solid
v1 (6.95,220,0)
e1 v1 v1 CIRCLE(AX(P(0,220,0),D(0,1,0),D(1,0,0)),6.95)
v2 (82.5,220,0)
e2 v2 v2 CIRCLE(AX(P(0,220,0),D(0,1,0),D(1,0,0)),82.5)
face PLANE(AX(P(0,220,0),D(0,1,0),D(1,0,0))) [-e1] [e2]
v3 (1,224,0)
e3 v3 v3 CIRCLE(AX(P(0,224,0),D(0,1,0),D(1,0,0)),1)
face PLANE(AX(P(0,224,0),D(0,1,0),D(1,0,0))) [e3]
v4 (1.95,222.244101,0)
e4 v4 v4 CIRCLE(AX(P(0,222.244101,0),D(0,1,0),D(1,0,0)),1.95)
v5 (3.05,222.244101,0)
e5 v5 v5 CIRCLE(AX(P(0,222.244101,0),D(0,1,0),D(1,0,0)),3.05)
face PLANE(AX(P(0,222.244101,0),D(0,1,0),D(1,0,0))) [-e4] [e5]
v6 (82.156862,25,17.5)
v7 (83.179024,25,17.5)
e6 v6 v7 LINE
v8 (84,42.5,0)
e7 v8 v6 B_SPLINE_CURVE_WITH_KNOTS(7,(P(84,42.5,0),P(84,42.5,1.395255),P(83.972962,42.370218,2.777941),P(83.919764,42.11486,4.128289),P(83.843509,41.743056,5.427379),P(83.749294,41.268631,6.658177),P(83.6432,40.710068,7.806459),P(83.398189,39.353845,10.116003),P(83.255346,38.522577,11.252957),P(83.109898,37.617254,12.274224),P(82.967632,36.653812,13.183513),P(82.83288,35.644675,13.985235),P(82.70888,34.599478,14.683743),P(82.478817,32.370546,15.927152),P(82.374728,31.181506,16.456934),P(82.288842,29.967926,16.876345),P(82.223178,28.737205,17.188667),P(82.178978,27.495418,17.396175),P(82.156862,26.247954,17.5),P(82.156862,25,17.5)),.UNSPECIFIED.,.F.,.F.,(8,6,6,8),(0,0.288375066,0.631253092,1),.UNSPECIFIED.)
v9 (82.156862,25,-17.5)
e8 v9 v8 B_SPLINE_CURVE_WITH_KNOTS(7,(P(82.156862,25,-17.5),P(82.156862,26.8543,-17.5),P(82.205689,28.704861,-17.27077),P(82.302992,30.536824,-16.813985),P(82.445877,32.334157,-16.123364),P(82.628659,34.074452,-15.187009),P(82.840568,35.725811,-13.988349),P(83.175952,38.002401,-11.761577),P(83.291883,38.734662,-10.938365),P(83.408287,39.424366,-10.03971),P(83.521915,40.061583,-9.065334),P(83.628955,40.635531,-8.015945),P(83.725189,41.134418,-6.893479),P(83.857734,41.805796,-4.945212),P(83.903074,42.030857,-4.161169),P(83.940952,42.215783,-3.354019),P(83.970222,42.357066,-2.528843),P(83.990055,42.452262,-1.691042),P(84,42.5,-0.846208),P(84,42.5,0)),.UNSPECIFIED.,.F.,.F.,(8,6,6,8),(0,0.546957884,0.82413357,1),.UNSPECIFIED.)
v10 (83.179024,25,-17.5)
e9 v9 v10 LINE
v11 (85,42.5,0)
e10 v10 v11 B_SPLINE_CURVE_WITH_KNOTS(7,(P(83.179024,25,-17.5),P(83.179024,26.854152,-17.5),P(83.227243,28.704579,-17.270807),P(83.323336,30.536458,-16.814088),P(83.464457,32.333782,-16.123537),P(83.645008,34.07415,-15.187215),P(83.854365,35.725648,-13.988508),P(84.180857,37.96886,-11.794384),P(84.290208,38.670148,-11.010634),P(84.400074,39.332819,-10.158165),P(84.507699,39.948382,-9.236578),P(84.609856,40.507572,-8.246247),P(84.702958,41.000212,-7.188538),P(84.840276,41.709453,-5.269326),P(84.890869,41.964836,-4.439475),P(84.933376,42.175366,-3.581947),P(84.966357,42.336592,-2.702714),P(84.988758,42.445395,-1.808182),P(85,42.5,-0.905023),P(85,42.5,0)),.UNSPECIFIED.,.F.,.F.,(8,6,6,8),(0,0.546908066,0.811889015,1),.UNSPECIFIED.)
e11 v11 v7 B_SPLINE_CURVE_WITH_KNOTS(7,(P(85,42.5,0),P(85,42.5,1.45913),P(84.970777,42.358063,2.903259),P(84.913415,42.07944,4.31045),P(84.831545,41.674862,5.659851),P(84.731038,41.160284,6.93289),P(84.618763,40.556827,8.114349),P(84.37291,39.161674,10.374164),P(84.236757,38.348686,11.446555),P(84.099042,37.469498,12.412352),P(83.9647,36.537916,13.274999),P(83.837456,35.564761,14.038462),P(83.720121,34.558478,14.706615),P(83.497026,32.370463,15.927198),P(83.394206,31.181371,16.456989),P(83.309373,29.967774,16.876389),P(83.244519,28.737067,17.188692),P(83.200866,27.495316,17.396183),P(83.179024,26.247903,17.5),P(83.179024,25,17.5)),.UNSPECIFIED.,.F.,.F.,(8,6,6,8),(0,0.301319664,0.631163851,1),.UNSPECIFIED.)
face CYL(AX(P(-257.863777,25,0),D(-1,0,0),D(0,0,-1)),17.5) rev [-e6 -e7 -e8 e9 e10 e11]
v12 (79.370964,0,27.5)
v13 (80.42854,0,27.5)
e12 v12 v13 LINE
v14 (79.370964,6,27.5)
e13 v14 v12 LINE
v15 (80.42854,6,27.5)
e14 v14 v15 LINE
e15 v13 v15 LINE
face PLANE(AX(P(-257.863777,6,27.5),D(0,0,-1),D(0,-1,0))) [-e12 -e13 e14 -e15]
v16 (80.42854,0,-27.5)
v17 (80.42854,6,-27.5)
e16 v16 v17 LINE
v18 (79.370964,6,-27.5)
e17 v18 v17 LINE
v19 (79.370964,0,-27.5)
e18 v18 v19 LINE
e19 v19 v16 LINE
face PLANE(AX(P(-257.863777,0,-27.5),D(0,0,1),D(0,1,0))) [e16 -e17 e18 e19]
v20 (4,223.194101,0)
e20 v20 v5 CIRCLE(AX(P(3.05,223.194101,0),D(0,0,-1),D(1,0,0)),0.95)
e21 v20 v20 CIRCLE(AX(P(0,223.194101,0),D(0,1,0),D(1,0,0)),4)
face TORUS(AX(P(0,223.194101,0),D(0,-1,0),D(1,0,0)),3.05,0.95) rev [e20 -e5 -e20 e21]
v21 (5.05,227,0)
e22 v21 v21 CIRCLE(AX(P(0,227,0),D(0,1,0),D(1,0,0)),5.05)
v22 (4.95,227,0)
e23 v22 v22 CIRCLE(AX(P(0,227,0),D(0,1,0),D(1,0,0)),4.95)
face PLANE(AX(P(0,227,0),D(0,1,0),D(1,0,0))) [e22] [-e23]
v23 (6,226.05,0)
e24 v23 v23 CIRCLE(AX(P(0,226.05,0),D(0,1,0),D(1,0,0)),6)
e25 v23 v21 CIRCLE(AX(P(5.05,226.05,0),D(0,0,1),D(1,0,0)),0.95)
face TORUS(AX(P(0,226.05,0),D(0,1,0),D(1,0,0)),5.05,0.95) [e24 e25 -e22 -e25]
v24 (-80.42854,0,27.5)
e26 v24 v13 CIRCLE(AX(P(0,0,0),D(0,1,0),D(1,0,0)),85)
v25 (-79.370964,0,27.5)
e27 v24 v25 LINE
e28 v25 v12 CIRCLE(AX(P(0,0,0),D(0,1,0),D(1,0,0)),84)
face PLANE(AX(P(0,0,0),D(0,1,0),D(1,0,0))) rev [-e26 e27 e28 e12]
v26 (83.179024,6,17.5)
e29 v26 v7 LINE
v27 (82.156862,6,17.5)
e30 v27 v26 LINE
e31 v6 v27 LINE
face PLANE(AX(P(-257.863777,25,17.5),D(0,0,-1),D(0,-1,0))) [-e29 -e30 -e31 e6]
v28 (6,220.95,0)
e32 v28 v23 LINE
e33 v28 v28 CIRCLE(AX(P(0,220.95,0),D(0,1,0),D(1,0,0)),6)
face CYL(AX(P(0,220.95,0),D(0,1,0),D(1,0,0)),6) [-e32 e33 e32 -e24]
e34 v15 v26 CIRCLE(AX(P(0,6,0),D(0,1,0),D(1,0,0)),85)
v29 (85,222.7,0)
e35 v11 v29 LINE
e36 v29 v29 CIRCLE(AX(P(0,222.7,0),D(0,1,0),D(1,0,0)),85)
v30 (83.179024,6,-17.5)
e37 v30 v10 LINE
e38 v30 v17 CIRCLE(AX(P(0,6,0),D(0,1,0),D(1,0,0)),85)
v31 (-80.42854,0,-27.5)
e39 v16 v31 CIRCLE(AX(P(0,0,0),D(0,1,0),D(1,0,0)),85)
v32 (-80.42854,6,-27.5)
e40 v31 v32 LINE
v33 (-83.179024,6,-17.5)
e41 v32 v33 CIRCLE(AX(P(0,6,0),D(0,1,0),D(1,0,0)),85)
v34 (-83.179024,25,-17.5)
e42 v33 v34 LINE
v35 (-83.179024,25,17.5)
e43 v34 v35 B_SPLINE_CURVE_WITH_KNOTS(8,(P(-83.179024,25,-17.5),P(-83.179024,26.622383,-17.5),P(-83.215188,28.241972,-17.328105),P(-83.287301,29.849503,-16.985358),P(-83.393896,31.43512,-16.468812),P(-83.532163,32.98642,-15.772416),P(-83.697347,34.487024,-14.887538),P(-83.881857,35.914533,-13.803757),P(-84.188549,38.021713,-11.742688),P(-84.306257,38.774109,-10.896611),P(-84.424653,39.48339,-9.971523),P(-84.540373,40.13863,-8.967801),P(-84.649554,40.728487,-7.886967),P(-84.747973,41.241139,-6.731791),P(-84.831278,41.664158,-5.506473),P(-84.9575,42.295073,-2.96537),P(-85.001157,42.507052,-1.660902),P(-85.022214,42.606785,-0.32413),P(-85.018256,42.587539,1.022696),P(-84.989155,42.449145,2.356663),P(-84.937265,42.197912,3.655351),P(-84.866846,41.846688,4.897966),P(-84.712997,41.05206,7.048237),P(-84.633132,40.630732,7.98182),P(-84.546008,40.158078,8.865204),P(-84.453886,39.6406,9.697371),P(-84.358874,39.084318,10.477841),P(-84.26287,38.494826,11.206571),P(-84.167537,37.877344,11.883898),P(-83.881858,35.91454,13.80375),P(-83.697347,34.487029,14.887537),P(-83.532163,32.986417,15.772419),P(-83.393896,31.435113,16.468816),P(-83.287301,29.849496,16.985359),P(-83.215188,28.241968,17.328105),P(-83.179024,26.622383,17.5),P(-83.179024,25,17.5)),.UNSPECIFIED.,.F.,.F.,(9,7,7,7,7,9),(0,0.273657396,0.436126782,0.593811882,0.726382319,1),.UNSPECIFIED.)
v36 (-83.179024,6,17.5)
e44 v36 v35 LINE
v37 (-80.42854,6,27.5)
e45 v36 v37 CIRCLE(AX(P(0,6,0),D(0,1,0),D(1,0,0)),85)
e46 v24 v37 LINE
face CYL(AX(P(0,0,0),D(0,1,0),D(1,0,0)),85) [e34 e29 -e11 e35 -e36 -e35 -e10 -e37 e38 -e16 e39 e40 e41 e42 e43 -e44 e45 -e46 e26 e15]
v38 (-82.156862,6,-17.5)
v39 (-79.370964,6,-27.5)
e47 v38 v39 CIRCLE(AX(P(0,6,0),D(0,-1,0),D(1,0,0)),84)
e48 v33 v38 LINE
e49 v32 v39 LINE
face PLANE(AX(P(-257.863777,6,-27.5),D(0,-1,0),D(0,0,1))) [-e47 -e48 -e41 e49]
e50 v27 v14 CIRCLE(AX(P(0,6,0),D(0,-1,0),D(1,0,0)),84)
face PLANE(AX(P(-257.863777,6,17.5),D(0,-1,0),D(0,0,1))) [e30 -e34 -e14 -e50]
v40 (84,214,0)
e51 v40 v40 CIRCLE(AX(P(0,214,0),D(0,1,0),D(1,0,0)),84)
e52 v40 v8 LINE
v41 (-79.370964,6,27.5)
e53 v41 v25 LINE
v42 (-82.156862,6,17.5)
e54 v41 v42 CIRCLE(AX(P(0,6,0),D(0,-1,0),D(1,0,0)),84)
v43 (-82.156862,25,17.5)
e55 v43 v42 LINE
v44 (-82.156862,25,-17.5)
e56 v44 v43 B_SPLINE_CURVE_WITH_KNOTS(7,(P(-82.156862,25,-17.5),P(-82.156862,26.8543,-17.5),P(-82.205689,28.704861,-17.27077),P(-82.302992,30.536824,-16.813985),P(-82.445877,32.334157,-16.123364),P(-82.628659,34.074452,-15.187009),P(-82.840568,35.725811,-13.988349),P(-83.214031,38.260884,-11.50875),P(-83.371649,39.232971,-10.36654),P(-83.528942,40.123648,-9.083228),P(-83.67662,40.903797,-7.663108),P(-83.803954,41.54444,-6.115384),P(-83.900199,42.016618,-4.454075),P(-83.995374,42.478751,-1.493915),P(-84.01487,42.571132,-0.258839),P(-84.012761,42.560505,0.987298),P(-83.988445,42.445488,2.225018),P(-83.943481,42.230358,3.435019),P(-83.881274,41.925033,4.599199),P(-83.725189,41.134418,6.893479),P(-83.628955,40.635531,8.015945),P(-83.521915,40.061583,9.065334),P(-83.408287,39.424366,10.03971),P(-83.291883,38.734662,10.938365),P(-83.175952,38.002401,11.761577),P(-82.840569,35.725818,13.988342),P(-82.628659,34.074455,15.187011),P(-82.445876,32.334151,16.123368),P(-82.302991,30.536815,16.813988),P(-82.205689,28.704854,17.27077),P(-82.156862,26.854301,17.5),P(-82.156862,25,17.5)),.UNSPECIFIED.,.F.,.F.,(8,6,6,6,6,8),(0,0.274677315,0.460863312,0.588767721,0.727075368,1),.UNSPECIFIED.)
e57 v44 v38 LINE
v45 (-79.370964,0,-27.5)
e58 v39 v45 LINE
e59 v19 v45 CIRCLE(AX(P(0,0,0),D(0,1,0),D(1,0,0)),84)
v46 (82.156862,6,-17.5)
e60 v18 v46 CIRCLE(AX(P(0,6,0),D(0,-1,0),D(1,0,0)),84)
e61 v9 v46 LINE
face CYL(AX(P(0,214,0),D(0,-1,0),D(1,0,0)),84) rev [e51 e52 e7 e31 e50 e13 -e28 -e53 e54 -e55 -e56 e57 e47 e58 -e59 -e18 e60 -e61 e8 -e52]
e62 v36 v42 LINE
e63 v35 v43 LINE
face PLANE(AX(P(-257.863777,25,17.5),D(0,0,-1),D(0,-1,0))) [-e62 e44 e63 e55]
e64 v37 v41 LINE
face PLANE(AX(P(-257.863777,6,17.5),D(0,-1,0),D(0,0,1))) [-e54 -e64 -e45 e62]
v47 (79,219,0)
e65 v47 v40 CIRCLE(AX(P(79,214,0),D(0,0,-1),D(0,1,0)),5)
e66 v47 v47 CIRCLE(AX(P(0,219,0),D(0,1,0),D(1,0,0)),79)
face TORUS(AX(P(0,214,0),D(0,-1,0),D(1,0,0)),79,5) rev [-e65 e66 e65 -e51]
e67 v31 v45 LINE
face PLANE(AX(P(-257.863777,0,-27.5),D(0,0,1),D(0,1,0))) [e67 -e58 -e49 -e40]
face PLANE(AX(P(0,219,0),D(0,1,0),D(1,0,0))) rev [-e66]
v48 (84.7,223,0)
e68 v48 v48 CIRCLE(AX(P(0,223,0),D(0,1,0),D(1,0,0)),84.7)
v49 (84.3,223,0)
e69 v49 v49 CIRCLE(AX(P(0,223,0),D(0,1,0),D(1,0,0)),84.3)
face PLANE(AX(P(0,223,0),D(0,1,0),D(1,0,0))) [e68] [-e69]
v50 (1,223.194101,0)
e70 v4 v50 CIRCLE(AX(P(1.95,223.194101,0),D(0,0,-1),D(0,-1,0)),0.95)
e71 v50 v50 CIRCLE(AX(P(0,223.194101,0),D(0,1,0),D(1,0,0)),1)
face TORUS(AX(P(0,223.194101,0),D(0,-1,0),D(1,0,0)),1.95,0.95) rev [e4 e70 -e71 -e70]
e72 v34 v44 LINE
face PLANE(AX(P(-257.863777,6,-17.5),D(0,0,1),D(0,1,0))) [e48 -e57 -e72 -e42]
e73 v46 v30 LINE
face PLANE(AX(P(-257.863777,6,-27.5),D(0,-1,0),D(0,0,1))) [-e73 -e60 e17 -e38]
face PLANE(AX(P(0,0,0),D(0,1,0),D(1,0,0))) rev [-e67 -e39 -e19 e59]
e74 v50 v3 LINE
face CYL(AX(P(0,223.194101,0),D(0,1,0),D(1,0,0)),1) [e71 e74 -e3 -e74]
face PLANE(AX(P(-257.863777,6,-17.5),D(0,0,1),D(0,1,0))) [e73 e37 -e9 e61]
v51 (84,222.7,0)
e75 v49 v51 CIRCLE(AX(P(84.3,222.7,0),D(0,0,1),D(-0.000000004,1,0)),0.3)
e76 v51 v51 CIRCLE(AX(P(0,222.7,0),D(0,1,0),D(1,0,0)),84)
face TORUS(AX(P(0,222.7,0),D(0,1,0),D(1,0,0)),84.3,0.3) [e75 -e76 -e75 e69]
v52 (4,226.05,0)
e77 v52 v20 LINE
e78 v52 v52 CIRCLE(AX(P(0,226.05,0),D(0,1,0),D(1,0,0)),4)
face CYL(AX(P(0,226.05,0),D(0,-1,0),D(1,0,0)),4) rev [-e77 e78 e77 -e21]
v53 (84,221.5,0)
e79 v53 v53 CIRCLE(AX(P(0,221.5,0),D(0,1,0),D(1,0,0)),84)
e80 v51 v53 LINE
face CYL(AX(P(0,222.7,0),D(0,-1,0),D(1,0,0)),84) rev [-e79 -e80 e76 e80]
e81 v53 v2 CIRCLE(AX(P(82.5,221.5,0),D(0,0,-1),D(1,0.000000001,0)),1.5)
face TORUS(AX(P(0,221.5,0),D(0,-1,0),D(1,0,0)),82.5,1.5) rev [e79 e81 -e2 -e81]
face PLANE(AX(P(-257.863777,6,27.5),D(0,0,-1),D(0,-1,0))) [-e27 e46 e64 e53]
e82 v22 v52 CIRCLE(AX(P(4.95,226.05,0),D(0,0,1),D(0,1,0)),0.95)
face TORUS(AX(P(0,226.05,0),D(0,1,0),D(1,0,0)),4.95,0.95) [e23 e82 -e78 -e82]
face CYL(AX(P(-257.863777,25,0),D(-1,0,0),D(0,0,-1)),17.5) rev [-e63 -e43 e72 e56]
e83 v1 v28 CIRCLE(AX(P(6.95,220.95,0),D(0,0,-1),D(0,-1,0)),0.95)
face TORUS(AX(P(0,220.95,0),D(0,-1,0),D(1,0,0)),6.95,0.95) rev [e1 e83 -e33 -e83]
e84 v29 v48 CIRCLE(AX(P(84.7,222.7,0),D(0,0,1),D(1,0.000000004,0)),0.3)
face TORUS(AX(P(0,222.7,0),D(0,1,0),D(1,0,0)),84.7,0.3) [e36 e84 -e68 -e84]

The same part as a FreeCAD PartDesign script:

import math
import FreeCAD as App
import Part
import Sketcher

doc = App.newDocument("Part")
body = doc.addObject("PartDesign::Body", "Body")

# Sketch on XY plane
sketch1 = body.newObject("Sketcher::SketchObject", "Sketch")
sketch1.AttachmentSupport = (doc.getObject("XY_Plane"), [""])
sketch1.MapMode = "FlatFace"
sketch1.addGeometry([
    Part.LineSegment(App.Vector(0, 219, 0), App.Vector(79, 219, 0)),  # 0
    Part.ArcOfCircle(Part.Circle(App.Vector(79, 214, 0), App.Vector(0, 0, 1), 5), math.radians(0), math.radians(90)),  # 1
    Part.LineSegment(App.Vector(84, 214, 0), App.Vector(84, 0, 0)),  # 2
    Part.LineSegment(App.Vector(84, 0, 0), App.Vector(85, 0, 0)),  # 3
    Part.LineSegment(App.Vector(85, 0, 0), App.Vector(85, 222.7, 0)),  # 4
    Part.ArcOfCircle(Part.Circle(App.Vector(84.7, 222.7, 0), App.Vector(0, 0, 1), 0.3), math.radians(0), math.radians(90)),  # 5
    Part.LineSegment(App.Vector(84.7, 223, 0), App.Vector(84.3, 223, 0)),  # 6
    Part.ArcOfCircle(Part.Circle(App.Vector(84.3, 222.7, 0), App.Vector(0, 0, 1), 0.3), math.radians(90), math.radians(180)),  # 7
    Part.LineSegment(App.Vector(84, 222.7, 0), App.Vector(84, 221.5, 0)),  # 8
    Part.ArcOfCircle(Part.Circle(App.Vector(82.5, 221.5, 0), App.Vector(0, 0, 1), 1.5), math.radians(-90), math.radians(0)),  # 9
    Part.LineSegment(App.Vector(82.5, 220, 0), App.Vector(6.95, 220, 0)),  # 10
    Part.ArcOfCircle(Part.Circle(App.Vector(6.95, 220.95, 0), App.Vector(0, 0, 1), 0.95), math.radians(180), math.radians(270)),  # 11
    Part.LineSegment(App.Vector(6, 220.95, 0), App.Vector(6, 226.05, 0)),  # 12
    Part.ArcOfCircle(Part.Circle(App.Vector(5.05, 226.05, 0), App.Vector(0, 0, 1), 0.95), math.radians(0), math.radians(90)),  # 13
    Part.LineSegment(App.Vector(5.05, 227, 0), App.Vector(4.95, 227, 0)),  # 14
    Part.ArcOfCircle(Part.Circle(App.Vector(4.95, 226.05, 0), App.Vector(0, 0, 1), 0.95), math.radians(90), math.radians(180)),  # 15
    Part.LineSegment(App.Vector(4, 226.05, 0), App.Vector(4, 223.194101, 0)),  # 16
    Part.ArcOfCircle(Part.Circle(App.Vector(3.05, 223.194101, 0), App.Vector(0, 0, 1), 0.95), math.radians(-90), math.radians(0)),  # 17
    Part.LineSegment(App.Vector(3.05, 222.244101, 0), App.Vector(1.95, 222.244101, 0)),  # 18
    Part.ArcOfCircle(Part.Circle(App.Vector(1.95, 223.194101, 0), App.Vector(0, 0, 1), 0.95), math.radians(180), math.radians(270)),  # 19
    Part.LineSegment(App.Vector(1, 223.194101, 0), App.Vector(1, 224, 0)),  # 20
    Part.LineSegment(App.Vector(1, 224, 0), App.Vector(0, 224, 0)),  # 21
    Part.LineSegment(App.Vector(0, 224, 0), App.Vector(0, 219, 0)),  # 22
], False)
sketch1.addConstraint([
    Sketcher.Constraint("Tangent", 0, 2, 1, 2),
    Sketcher.Constraint("Tangent", 1, 1, 2, 1),
    Sketcher.Constraint("Coincident", 2, 2, 3, 1),
    Sketcher.Constraint("Coincident", 3, 2, 4, 1),
    Sketcher.Constraint("Tangent", 4, 2, 5, 1),
    Sketcher.Constraint("Tangent", 5, 2, 6, 1),
    Sketcher.Constraint("Tangent", 6, 2, 7, 1),
    Sketcher.Constraint("Tangent", 7, 2, 8, 1),
    Sketcher.Constraint("Tangent", 8, 2, 9, 2),
    Sketcher.Constraint("Tangent", 9, 1, 10, 1),
    Sketcher.Constraint("Tangent", 10, 2, 11, 2),
    Sketcher.Constraint("Tangent", 11, 1, 12, 1),
    Sketcher.Constraint("Tangent", 12, 2, 13, 1),
    Sketcher.Constraint("Tangent", 13, 2, 14, 1),
    Sketcher.Constraint("Tangent", 14, 2, 15, 1),
    Sketcher.Constraint("Tangent", 15, 2, 16, 1),
    Sketcher.Constraint("Tangent", 16, 2, 17, 2),
    Sketcher.Constraint("Tangent", 17, 1, 18, 1),
    Sketcher.Constraint("Tangent", 18, 2, 19, 2),
    Sketcher.Constraint("Tangent", 19, 1, 20, 1),
    Sketcher.Constraint("Coincident", 20, 2, 21, 1),
    Sketcher.Constraint("Coincident", 21, 2, 22, 1),
    Sketcher.Constraint("Coincident", 22, 2, 0, 1),
    Sketcher.Constraint("Horizontal", 0),
    Sketcher.Constraint("Vertical", 2),
    Sketcher.Constraint("Horizontal", 3),
    Sketcher.Constraint("Vertical", 4),
    Sketcher.Constraint("Horizontal", 6),
    Sketcher.Constraint("Vertical", 8),
    Sketcher.Constraint("Horizontal", 10),
    Sketcher.Constraint("Vertical", 12),
    Sketcher.Constraint("Horizontal", 14),
    Sketcher.Constraint("Vertical", 16),
    Sketcher.Constraint("Horizontal", 18),
    Sketcher.Constraint("Vertical", 20),
    Sketcher.Constraint("Horizontal", 21),
    Sketcher.Constraint("Vertical", 22),
    Sketcher.Constraint("Equal", 5, 7),
    Sketcher.Constraint("Equal", 11, 13),
    Sketcher.Constraint("Equal", 13, 15),
    Sketcher.Constraint("Equal", 15, 17),
    Sketcher.Constraint("Equal", 17, 19),
    Sketcher.Constraint("PointOnObject", 2, 2, -1),
    Sketcher.Constraint("PointOnObject", 21, 2, -2),
    Sketcher.Constraint("Vertical", 2, 2, 7, 2),
    Sketcher.Constraint("Equal", 3, 21),
    Sketcher.Constraint("Radius", 1, 5.0),
    Sketcher.Constraint("Radius", 5, 0.3),
    Sketcher.Constraint("Radius", 9, 1.5),
    Sketcher.Constraint("DistanceX", 0, 1, 0, 2, 79.0),
    Sketcher.Constraint("DistanceX", 3, 1, 3, 2, 1.0),
    Sketcher.Constraint("DistanceY", 2, 2, 2, 1, 214.0),
    Sketcher.Constraint("DistanceY", 22, 2, 22, 1, 5.0),
    Sketcher.Constraint("Radius", 11, 0.95),
    Sketcher.Constraint("DistanceX", 14, 2, 14, 1, 0.1),
    Sketcher.Constraint("DistanceX", 18, 2, 18, 1, 1.1),
    Sketcher.Constraint("DistanceY", 4, 1, 4, 2, 222.7),
    Sketcher.Constraint("DistanceY", 8, 2, 8, 1, 1.2),
    Sketcher.Constraint("DistanceY", 12, 1, 12, 2, 5.1),
    Sketcher.Constraint("DistanceY", 16, 2, 16, 1, 2.855899),
])
revolution = body.newObject("PartDesign::Revolution", "Revolution")
revolution.Profile = sketch1
revolution.ReferenceAxis = (sketch1, ["V_Axis"])
revolution.Angle = 360

# Sketch on YZ plane
sketch2 = body.newObject("Sketcher::SketchObject", "Sketch001")
sketch2.AttachmentSupport = (doc.getObject("YZ_Plane"), [""])
sketch2.MapMode = "FlatFace"
sketch2.addGeometry([
    Part.LineSegment(App.Vector(25, 17.5, 0), App.Vector(6, 17.5, 0)),  # 0
    Part.LineSegment(App.Vector(6, 17.5, 0), App.Vector(6, 27.5, 0)),  # 1
    Part.LineSegment(App.Vector(6, 27.5, 0), App.Vector(0, 27.5, 0)),  # 2
    Part.LineSegment(App.Vector(0, 27.5, 0), App.Vector(0, -27.5, 0)),  # 3
    Part.LineSegment(App.Vector(0, -27.5, 0), App.Vector(6, -27.5, 0)),  # 4
    Part.LineSegment(App.Vector(6, -27.5, 0), App.Vector(6, -17.5, 0)),  # 5
    Part.LineSegment(App.Vector(6, -17.5, 0), App.Vector(25, -17.5, 0)),  # 6
    Part.ArcOfCircle(Part.Circle(App.Vector(25, 0, 0), App.Vector(0, 0, 1), 17.5), math.radians(-90), math.radians(90)),  # 7
], False)
sketch2.addConstraint([
    Sketcher.Constraint("Coincident", 0, 2, 1, 1),
    Sketcher.Constraint("Coincident", 1, 2, 2, 1),
    Sketcher.Constraint("Coincident", 2, 2, 3, 1),
    Sketcher.Constraint("Coincident", 3, 2, 4, 1),
    Sketcher.Constraint("Coincident", 4, 2, 5, 1),
    Sketcher.Constraint("Coincident", 5, 2, 6, 1),
    Sketcher.Constraint("Tangent", 6, 2, 7, 1),
    Sketcher.Constraint("Tangent", 7, 2, 0, 1),
    Sketcher.Constraint("Horizontal", 0),
    Sketcher.Constraint("Vertical", 1),
    Sketcher.Constraint("Horizontal", 2),
    Sketcher.Constraint("Vertical", 3),
    Sketcher.Constraint("Horizontal", 4),
    Sketcher.Constraint("Vertical", 5),
    Sketcher.Constraint("Horizontal", 6),
    Sketcher.Constraint("Symmetric", 2, 2, 3, 2, -1, 1),
    Sketcher.Constraint("Symmetric", 0, 2, 5, 2, -1),
    Sketcher.Constraint("Radius", 7, 17.5),
    Sketcher.Constraint("DistanceX", 0, 2, 0, 1, 19.0),
    Sketcher.Constraint("DistanceX", 2, 2, 2, 1, 6.0),
    Sketcher.Constraint("DistanceY", 1, 1, 1, 2, 10.0),
])
pocket1 = body.newObject("PartDesign::Pocket", "Pocket")
pocket1.Profile = sketch2
pocket1.Type = "ThroughAll"
pocket1.Midplane = True

doc.recompute()
